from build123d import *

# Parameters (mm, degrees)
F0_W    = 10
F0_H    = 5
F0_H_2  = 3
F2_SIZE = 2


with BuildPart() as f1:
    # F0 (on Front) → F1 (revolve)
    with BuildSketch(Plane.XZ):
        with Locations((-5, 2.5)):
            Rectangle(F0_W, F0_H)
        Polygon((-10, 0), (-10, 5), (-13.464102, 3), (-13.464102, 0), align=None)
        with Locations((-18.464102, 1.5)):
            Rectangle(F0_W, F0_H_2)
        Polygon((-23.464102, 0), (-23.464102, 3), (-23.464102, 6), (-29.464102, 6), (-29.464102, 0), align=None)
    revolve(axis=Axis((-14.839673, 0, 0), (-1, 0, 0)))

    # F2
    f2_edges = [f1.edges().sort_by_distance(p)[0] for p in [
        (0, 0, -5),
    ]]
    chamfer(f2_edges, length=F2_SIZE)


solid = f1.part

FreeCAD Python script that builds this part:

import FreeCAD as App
import Part
import Sketcher

V = App.Vector
Q = App.Units.Quantity


def edges_at(feature, points):
    """Names of the edges that pass closest to the given points."""
    edges = feature.Shape.Edges
    near = lambda p: min(range(len(edges)), key=lambda i: edges[i].distToShape(Part.Vertex(*p))[0])
    return sorted({f"Edge{near(p) + 1}" for p in points})


def add_polygon(sketch, points):
    """Adds a closed chain of lines whose ends are joined by coincident constraints."""
    first, n = sketch.GeometryCount, len(points)
    for a, b in zip(points, points[1:] + points[:1]):
        sketch.addGeometry(Part.LineSegment(App.Vector(*a, 0), App.Vector(*b, 0)), False)
    for i in range(n):
        sketch.addConstraint(Sketcher.Constraint("Coincident", first + i, 2, first + (i + 1) % n, 1))

doc = App.newDocument("Part")
params = doc.addObject("Spreadsheet::Sheet", "Params")
for row, (alias, value) in enumerate([
    ("sketch1_width", "10 mm"),
    ("sketch1_width2", "6 mm"),
    ("sketch1_height", "5 mm"),
    ("sketch1_height2", "3 mm"),
    ("revolution_angle", "360 deg"),
    ("chamfer_size", "2 mm"),
], start=1):
    params.set(f"A{row}", alias)
    params.set(f"B{row}", "=" + value)
    params.setAlias(f"B{row}", alias)

body = doc.addObject("PartDesign::Body", "Body")

# Sketch on XZ plane
sketch1 = body.newObject("Sketcher::SketchObject", "Sketch")
sketch1.AttachmentSupport = (doc.getObject("XZ_Plane"), [""])
sketch1.MapMode = "FlatFace"
add_polygon(sketch1, [(0, 0), (0, 5), (-10, 5), (-13.5, 3), (-23.5, 3), (-23.5, 6), (-29.5, 6), (-29.5, 0)])  # lines 0-7
sketch1.addConstraint([
    Sketcher.Constraint("Vertical", 0),
    Sketcher.Constraint("Horizontal", 1),
    Sketcher.Constraint("Horizontal", 3),
    Sketcher.Constraint("Vertical", 4),
    Sketcher.Constraint("Horizontal", 5),
    Sketcher.Constraint("Vertical", 6),
    Sketcher.Constraint("Horizontal", 7),
    Sketcher.Constraint("Coincident", 7, 2, -1, 1),
    Sketcher.Constraint("Equal", 1, 3),
    Sketcher.Constraint("Equal", 5, 6),
    Sketcher.Constraint("DistanceX", 1, 2, 1, 1, 10.0),
    Sketcher.Constraint("DistanceX", 5, 2, 5, 1, 6.0),
    Sketcher.Constraint("DistanceY", 0, 1, 0, 2, 5.0),
    Sketcher.Constraint("DistanceY", 4, 1, 4, 2, 3.0),
    Sketcher.Constraint("Angle", 2, Q("-150.000003 deg")),
])
sketch1.setExpression("Constraints[18]", "Params.sketch1_width")
sketch1.setExpression("Constraints[19]", "Params.sketch1_width2")
sketch1.setExpression("Constraints[20]", "Params.sketch1_height")
sketch1.setExpression("Constraints[21]", "Params.sketch1_height2")
revolution = body.newObject("PartDesign::Revolution", "Revolution")
revolution.Profile = sketch1
revolution.ReferenceAxis = (sketch1, ["H_Axis"])
revolution.setExpression("Angle", "Params.revolution_angle")
doc.recompute()

chamfer = body.newObject("PartDesign::Chamfer", "Chamfer")
chamfer.Base = (revolution, edges_at(revolution, [(0, 0, -5)]))
chamfer.setExpression("Size", "Params.chamfer_size")

doc.recompute()
